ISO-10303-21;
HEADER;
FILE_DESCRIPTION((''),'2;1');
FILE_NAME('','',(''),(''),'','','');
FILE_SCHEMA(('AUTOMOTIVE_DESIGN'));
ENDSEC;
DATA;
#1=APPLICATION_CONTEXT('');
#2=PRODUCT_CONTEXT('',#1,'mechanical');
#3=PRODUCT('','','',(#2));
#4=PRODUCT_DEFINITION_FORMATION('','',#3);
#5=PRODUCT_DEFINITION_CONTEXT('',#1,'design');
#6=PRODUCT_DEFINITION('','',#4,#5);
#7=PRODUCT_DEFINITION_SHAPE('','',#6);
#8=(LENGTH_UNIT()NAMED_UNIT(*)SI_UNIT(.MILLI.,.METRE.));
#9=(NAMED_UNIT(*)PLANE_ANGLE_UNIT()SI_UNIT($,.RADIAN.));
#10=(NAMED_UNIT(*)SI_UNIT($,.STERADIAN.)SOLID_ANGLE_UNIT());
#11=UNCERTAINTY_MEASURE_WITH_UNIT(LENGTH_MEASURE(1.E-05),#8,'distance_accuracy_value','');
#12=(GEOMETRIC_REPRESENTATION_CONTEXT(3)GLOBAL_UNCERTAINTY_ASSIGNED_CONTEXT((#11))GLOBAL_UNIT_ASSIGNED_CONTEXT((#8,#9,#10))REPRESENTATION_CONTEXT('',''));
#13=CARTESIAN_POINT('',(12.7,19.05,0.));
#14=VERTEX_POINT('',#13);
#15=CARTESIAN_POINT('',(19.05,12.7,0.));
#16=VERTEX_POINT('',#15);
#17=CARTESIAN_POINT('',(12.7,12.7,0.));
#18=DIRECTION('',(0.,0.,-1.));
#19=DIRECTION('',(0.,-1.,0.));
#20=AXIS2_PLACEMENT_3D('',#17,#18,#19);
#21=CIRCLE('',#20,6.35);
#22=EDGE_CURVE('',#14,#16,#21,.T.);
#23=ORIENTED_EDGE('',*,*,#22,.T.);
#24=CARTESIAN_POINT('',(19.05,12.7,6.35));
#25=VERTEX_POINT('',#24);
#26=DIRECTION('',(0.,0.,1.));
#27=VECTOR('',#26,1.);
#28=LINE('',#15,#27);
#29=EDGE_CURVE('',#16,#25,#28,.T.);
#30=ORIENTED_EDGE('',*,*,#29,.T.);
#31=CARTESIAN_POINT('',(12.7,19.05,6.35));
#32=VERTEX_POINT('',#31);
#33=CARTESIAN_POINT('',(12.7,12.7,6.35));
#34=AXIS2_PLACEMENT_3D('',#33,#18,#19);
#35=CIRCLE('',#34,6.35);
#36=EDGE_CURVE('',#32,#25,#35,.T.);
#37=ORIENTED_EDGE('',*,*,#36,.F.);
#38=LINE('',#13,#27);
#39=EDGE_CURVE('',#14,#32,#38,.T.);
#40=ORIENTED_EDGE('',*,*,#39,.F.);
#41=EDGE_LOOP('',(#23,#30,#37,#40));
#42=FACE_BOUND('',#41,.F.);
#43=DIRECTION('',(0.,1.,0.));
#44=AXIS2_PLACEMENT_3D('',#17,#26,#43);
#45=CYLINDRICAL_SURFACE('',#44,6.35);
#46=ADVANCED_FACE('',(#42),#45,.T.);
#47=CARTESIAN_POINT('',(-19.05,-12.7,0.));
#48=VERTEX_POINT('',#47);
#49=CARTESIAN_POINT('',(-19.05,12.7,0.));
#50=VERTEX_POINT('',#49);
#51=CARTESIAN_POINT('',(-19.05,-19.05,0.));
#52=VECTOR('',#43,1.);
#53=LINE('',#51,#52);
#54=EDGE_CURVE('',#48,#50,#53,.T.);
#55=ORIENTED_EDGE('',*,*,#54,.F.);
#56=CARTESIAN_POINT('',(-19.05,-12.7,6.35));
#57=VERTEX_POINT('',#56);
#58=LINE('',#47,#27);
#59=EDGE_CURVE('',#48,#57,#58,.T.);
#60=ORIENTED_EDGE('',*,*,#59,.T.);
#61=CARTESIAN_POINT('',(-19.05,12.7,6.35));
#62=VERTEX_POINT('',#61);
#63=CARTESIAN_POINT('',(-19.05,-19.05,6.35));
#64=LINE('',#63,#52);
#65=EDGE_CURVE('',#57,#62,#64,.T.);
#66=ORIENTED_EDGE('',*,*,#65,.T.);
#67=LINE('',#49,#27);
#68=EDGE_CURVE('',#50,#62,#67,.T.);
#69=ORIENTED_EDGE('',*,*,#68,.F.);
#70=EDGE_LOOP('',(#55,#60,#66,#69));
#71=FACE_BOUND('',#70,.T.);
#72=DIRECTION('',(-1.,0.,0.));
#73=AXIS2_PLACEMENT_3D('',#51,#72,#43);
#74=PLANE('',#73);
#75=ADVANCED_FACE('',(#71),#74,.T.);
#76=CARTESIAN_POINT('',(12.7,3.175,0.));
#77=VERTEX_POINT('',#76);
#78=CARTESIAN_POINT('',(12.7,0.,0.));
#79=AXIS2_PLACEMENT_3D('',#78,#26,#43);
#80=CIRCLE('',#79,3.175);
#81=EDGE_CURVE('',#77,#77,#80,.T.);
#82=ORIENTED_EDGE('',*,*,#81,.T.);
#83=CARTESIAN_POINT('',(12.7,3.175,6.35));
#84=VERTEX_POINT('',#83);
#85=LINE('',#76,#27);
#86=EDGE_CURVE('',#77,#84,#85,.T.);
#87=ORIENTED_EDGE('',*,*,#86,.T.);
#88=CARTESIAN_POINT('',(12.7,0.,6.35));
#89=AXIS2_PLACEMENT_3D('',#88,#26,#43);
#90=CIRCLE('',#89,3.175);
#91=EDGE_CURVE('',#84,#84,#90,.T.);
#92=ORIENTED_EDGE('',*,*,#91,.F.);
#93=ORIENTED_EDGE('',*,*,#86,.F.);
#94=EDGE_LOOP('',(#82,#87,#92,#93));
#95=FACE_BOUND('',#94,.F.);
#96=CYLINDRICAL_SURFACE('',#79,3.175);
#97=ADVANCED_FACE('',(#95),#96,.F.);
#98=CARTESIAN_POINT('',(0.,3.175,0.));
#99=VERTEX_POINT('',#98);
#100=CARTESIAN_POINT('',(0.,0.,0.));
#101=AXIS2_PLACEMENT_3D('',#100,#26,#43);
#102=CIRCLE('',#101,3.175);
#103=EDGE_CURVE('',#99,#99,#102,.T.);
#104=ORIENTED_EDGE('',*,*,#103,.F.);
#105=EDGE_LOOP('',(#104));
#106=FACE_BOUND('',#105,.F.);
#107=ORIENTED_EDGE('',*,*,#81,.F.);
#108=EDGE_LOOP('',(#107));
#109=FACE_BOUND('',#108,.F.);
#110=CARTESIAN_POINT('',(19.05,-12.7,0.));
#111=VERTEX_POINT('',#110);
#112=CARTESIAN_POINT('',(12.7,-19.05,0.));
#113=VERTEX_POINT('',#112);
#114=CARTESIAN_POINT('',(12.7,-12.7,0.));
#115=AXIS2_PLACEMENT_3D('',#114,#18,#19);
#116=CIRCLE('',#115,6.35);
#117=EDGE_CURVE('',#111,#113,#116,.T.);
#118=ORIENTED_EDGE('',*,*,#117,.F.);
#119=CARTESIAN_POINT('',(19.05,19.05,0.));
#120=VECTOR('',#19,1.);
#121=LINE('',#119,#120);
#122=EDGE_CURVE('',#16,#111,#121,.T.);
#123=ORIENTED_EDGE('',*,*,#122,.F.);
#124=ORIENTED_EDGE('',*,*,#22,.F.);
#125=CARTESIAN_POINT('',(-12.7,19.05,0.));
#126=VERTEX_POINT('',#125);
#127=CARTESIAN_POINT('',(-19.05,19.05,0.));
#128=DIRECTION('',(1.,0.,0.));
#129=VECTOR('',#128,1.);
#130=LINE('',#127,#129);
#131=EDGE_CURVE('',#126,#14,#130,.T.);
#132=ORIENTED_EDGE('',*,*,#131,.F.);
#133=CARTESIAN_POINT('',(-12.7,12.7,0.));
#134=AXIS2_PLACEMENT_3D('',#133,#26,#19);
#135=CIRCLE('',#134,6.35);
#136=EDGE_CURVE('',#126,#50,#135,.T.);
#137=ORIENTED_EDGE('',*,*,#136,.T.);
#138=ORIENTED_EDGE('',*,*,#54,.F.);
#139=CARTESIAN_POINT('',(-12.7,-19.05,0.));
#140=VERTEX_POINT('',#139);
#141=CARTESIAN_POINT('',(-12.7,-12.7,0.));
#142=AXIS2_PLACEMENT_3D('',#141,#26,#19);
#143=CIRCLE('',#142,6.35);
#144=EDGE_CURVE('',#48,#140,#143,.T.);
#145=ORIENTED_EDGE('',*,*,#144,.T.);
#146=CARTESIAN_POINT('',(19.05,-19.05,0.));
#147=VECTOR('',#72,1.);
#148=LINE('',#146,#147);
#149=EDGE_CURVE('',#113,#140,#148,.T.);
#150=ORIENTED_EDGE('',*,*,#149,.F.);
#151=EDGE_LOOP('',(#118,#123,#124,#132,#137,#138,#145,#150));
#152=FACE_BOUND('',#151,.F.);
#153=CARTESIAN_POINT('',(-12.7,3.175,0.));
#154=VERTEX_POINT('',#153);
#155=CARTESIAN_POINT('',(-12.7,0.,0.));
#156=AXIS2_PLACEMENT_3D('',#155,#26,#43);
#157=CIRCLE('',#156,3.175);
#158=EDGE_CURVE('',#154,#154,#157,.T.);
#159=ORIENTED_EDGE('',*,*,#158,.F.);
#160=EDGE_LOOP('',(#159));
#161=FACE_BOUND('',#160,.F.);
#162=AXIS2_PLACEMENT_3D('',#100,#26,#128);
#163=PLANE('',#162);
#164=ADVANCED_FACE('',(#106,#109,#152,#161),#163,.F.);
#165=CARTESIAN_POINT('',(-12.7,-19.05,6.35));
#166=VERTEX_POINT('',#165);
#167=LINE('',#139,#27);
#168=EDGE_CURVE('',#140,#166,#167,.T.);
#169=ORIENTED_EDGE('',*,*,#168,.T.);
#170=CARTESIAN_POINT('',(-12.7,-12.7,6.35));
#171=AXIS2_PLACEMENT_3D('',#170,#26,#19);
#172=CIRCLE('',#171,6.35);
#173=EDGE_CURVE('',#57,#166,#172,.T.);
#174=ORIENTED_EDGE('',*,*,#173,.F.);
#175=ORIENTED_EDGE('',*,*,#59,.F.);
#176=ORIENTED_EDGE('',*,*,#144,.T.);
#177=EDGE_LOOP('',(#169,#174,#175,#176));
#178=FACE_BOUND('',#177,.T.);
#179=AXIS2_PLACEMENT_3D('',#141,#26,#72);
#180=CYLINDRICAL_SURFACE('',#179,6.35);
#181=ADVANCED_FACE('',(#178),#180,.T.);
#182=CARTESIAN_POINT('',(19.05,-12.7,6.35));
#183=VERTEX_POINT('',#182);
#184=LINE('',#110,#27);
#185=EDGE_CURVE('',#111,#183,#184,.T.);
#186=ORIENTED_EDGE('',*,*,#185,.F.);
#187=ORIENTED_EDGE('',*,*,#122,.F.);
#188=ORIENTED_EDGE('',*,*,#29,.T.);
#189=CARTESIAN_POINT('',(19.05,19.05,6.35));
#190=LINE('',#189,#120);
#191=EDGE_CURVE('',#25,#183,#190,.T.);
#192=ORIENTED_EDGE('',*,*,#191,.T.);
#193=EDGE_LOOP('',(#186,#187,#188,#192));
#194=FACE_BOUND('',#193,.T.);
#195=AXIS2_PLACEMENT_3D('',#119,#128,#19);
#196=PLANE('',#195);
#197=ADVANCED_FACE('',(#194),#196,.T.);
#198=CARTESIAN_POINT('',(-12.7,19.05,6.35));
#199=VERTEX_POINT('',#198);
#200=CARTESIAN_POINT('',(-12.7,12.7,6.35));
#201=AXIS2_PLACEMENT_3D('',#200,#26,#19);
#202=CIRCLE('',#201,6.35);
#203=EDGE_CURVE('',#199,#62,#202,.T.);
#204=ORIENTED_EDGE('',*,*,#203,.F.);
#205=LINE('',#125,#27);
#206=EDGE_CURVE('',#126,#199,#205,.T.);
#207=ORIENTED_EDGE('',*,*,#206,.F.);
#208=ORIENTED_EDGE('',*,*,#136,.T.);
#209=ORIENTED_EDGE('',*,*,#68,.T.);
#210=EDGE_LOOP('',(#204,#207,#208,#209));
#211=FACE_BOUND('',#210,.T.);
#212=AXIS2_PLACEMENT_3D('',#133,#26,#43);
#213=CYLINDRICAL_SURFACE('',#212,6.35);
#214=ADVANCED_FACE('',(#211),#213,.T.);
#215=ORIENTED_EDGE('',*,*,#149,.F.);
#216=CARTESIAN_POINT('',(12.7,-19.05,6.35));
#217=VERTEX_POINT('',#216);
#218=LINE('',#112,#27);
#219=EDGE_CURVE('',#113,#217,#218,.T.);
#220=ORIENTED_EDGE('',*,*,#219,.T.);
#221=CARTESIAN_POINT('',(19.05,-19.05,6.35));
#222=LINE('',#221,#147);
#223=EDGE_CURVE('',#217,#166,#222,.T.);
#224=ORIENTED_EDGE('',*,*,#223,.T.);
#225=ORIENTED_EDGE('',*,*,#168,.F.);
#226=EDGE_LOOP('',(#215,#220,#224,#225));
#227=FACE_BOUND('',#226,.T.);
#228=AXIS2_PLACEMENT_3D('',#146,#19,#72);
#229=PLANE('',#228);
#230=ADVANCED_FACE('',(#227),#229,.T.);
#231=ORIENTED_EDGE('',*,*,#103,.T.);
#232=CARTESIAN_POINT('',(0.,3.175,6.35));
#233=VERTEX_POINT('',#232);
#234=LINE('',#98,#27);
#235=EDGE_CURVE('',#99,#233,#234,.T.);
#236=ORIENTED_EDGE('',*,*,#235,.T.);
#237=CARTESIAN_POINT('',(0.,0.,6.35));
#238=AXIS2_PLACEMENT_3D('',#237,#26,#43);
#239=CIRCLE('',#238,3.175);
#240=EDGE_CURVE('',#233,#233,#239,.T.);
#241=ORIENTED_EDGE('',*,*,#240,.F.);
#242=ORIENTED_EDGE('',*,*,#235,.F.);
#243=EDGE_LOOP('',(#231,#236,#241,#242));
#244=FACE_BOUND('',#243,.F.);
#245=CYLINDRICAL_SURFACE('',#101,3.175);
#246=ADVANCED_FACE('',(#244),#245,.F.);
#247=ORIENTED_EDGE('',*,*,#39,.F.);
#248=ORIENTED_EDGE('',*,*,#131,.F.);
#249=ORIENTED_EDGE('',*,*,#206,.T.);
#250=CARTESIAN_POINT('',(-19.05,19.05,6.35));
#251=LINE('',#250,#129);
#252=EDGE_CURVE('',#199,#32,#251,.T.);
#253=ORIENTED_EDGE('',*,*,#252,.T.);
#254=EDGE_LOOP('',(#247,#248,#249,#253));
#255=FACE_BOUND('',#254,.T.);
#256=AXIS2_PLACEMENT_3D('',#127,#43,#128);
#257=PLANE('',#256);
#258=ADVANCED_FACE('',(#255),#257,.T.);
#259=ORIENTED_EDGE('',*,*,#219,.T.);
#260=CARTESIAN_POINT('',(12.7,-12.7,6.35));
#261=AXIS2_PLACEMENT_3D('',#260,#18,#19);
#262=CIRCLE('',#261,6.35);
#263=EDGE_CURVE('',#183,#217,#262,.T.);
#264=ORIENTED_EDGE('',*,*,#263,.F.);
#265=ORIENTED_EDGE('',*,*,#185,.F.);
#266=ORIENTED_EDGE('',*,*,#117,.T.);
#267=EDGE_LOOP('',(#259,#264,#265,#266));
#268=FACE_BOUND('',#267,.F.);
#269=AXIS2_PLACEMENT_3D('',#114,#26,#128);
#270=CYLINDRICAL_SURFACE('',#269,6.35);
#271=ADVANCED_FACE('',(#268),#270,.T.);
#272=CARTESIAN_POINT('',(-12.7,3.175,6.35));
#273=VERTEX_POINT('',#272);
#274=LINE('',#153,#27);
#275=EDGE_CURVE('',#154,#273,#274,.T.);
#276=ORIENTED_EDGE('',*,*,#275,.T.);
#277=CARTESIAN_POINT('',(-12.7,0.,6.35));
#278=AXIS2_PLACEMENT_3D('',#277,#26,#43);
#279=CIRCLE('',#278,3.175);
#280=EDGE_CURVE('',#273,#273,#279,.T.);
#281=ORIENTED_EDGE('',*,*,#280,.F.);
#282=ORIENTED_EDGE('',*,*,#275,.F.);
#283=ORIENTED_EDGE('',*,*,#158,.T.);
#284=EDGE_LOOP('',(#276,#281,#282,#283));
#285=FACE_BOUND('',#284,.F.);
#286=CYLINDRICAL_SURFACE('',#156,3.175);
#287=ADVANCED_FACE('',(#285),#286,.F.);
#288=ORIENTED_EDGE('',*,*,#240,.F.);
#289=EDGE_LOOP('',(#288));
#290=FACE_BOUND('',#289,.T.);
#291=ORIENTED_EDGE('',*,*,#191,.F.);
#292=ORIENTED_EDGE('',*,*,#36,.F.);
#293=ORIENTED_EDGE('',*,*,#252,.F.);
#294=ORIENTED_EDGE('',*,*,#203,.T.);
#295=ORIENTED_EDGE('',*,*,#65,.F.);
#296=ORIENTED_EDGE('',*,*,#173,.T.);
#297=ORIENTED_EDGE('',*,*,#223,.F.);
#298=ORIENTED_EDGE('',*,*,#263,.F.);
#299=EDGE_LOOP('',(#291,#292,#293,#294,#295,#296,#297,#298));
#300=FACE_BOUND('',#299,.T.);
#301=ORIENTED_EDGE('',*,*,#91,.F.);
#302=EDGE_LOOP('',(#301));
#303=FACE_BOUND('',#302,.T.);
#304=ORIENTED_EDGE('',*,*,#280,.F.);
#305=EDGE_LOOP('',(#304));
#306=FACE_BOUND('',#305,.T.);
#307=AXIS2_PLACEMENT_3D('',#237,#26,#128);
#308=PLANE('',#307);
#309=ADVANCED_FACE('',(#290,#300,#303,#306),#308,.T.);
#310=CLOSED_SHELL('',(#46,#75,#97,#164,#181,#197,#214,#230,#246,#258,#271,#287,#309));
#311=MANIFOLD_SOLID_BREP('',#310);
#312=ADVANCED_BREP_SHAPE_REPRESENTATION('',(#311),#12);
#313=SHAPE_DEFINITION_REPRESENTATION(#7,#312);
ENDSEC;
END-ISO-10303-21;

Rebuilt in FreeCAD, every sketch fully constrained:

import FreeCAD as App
import Part
import Sketcher
Q = App.Units.Quantity


def edges_at(feature, points):
    """Names of the edges that pass closest to the given points."""
    edges = feature.Shape.Edges
    near = lambda p: min(range(len(edges)), key=lambda i: edges[i].distToShape(Part.Vertex(*p))[0])
    return sorted({f"Edge{near(p) + 1}" for p in points})

doc = App.newDocument("Part")
params = doc.addObject("Spreadsheet::Sheet", "Params")
for row, (alias, value) in enumerate([
    ("sketch1_width", "1.5 in"),
    ("pad1_length", "0.25 in"),
    ("sketch2_diameter", "0.25 in"),
    ("hole_diameter", "0.25 in"),
    ("fillet_radius", "0.25 in"),
], start=1):
    params.set(f"A{row}", alias)
    params.set(f"B{row}", "=" + value)
    params.setAlias(f"B{row}", alias)

body = doc.addObject("PartDesign::Body", "Body")

# Sketch on XY plane
sketch1 = body.newObject("Sketcher::SketchObject", "Sketch")
sketch1.AttachmentSupport = (doc.getObject("XY_Plane"), [""])
sketch1.MapMode = "FlatFace"
sketch1.addGeometry(Part.LineSegment(App.Vector(19, 19, 0), App.Vector(-19, 19, 0)), False)
sketch1.addGeometry(Part.LineSegment(App.Vector(-19, 19, 0), App.Vector(-19, -19, 0)), False)
sketch1.addGeometry(Part.LineSegment(App.Vector(-19, -19, 0), App.Vector(19, -19, 0)), False)
sketch1.addGeometry(Part.LineSegment(App.Vector(19, -19, 0), App.Vector(19, 19, 0)), False)
sketch1.addConstraint(Sketcher.Constraint("Coincident", 0, 2, 1, 1))
sketch1.addConstraint(Sketcher.Constraint("Coincident", 1, 2, 2, 1))
sketch1.addConstraint(Sketcher.Constraint("Coincident", 2, 2, 3, 1))
sketch1.addConstraint(Sketcher.Constraint("Coincident", 3, 2, 0, 1))
sketch1.addConstraint(Sketcher.Constraint("Horizontal", 0))
sketch1.addConstraint(Sketcher.Constraint("Vertical", 1))
sketch1.addConstraint(Sketcher.Constraint("Horizontal", 2))
sketch1.addConstraint(Sketcher.Constraint("Vertical", 3))
sketch1.addConstraint(Sketcher.Constraint("Symmetric", 0, 2, 2, 2, -1, 1))
sketch1.addConstraint(Sketcher.Constraint("Equal", 2, 1))
sketch1.addConstraint(Sketcher.Constraint("DistanceX", 0, 2, 0, 1, Q("1.5 in")))
sketch1.setExpression("Constraints[10]", "Params.sketch1_width")
pad1 = body.newObject("PartDesign::Pad", "Pad")
pad1.Profile = sketch1
pad1.setExpression("Length", "Params.pad1_length")

# Sketch on XY plane
sketch2 = body.newObject("Sketcher::SketchObject", "Sketch001")
sketch2.AttachmentSupport = (doc.getObject("XY_Plane"), [""])
sketch2.MapMode = "FlatFace"
sketch2.addGeometry(Part.Circle(App.Vector(0, 0, 0), App.Vector(0, 0, 1), 3.2), False)
sketch2.addGeometry(Part.Circle(App.Vector(-12.7, 0, 0), App.Vector(0, 0, 1), 3.2), False)
sketch2.addGeometry(Part.Circle(App.Vector(12.7, 0, 0), App.Vector(0, 0, 1), 3.2), False)
sketch2.addConstraint(Sketcher.Constraint("Coincident", 0, 3, -1, 1))
sketch2.addConstraint(Sketcher.Constraint("Equal", 0, 1))
sketch2.addConstraint(Sketcher.Constraint("Equal", 1, 2))
sketch2.addConstraint(Sketcher.Constraint("Symmetric", 1, 3, 2, 3, -1, 1))
sketch2.addConstraint(Sketcher.Constraint("PointOnObject", 1, 3, -1))
sketch2.addConstraint(Sketcher.Constraint("Diameter", 0, Q("0.25 in")))
sketch2.addConstraint(Sketcher.Constraint("DistanceX", 1, 3, 2, 3, Q("1 in")))
sketch2.setExpression("Constraints[5]", "Params.sketch2_diameter")
doc.recompute()
hole = body.newObject("PartDesign::Hole", "Hole")
hole.Profile = sketch2
hole.ThreadType = "None"
hole.setExpression("Diameter", "Params.hole_diameter")
hole.DepthType = "ThroughAll"
hole.Reversed = True
doc.recompute()

fillet = body.newObject("PartDesign::Fillet", "Fillet")
fillet.Base = (hole, edges_at(hole, [
    (19.05, -19.05, 3.175),
    (19.05, 19.05, 3.175),
    (-19.05, 19.05, 3.175),
    (-19.05, -19.05, 3.175),
]))
fillet.setExpression("Radius", "Params.fillet_radius")

doc.recompute()
